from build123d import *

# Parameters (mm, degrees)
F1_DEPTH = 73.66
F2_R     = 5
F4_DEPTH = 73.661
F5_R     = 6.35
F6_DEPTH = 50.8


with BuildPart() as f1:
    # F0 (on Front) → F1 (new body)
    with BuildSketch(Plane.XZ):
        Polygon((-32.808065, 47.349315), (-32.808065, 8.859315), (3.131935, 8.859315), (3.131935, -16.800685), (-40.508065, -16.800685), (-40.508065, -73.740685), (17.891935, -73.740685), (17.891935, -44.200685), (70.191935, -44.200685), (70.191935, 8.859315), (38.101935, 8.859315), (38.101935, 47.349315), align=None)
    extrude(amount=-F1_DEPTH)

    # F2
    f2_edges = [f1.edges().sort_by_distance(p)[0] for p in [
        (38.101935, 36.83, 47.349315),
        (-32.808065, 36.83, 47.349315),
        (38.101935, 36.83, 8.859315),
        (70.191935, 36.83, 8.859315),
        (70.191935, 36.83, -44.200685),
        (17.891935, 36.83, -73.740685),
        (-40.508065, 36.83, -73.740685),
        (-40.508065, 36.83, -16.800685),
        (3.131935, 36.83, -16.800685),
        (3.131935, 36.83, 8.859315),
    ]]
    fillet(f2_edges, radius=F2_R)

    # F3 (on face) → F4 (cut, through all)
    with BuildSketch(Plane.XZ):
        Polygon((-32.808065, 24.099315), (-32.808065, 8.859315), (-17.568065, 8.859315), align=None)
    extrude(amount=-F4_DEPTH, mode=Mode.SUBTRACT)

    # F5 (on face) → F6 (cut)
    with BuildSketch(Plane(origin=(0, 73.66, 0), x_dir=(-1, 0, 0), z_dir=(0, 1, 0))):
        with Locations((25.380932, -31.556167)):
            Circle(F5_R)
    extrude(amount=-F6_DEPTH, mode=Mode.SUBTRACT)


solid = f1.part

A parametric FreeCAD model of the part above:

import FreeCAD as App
import Part
import Sketcher
from FreeCAD import Vector
Q = App.Units.Quantity


def edges_at(feature, points):
    """Names of the edges that pass closest to the given points."""
    edges = feature.Shape.Edges
    near = lambda p: min(range(len(edges)), key=lambda i: edges[i].distToShape(Part.Vertex(*p))[0])
    return sorted({f"Edge{near(p) + 1}" for p in points})


def add_polygon(sketch, points):
    """Adds a closed chain of lines whose ends are joined by coincident constraints."""
    first, n = sketch.GeometryCount, len(points)
    for a, b in zip(points, points[1:] + points[:1]):
        sketch.addGeometry(Part.LineSegment(App.Vector(*a, 0), App.Vector(*b, 0)), False)
    for i in range(n):
        sketch.addConstraint(Sketcher.Constraint("Coincident", first + i, 2, first + (i + 1) % n, 1))

doc = App.newDocument("Part")
body = doc.addObject("PartDesign::Body", "Body")

sketch1 = body.newObject("Sketcher::SketchObject", "Sketch")
sketch1.AttachmentSupport = (doc.getObject("XZ_Plane"), [""])
sketch1.MapMode = "FlatFace"
add_polygon(sketch1, [(-32.808065, 47.349315), (-32.808065, 8.859315), (3.131935, 8.859315), (3.131935, -16.800685), (-40.508065, -16.800685), (-40.508065, -73.740685), (17.891935, -73.740685), (17.891935, -44.200685), (70.191935, -44.200685), (70.191935, 8.859315), (38.101935, 8.859315), (38.101935, 47.349315)])
sketch1.addConstraint(Sketcher.Constraint("Vertical", 0))
sketch1.addConstraint(Sketcher.Constraint("Horizontal", 1))
sketch1.addConstraint(Sketcher.Constraint("Vertical", 2))
sketch1.addConstraint(Sketcher.Constraint("Horizontal", 3))
sketch1.addConstraint(Sketcher.Constraint("Vertical", 4))
sketch1.addConstraint(Sketcher.Constraint("Horizontal", 5))
sketch1.addConstraint(Sketcher.Constraint("Vertical", 6))
sketch1.addConstraint(Sketcher.Constraint("Horizontal", 7))
sketch1.addConstraint(Sketcher.Constraint("Vertical", 8))
sketch1.addConstraint(Sketcher.Constraint("Horizontal", 9))
sketch1.addConstraint(Sketcher.Constraint("Vertical", 10))
sketch1.addConstraint(Sketcher.Constraint("Horizontal", 11))
sketch1.addConstraint(Sketcher.Constraint("Horizontal", 1, 2, 8, 2))
sketch1.addConstraint(Sketcher.Constraint("DistanceX", 1, 1, 1, 2, 35.94))
sketch1.addConstraint(Sketcher.Constraint("DistanceX", 3, 2, 3, 1, 43.64))
sketch1.addConstraint(Sketcher.Constraint("DistanceX", 5, 1, 5, 2, 58.4))
sketch1.addConstraint(Sketcher.Constraint("DistanceX", 7, 1, 7, 2, 52.3))
sketch1.addConstraint(Sketcher.Constraint("DistanceX", 9, 2, 9, 1, 32.09))
sketch1.addConstraint(Sketcher.Constraint("DistanceY", 0, 2, 0, 1, 38.49))
sketch1.addConstraint(Sketcher.Constraint("DistanceY", 2, 2, 2, 1, 25.66))
sketch1.addConstraint(Sketcher.Constraint("DistanceY", 4, 2, 4, 1, 56.94))
sketch1.addConstraint(Sketcher.Constraint("DistanceY", 6, 1, 6, 2, 29.54))
sketch1.addConstraint(Sketcher.Constraint("DistanceX", 0, 2, -1, 1, 32.808065))
sketch1.addConstraint(Sketcher.Constraint("DistanceY", -1, 1, 0, 2, 8.859315))
pad1 = body.newObject("PartDesign::Pad", "Pad")
pad1.Profile = sketch1
pad1.Length = Q("2.9 in")
pad1.Reversed = True
doc.recompute()

fillet = body.newObject("PartDesign::Fillet", "Fillet")
fillet.Base = (pad1, edges_at(pad1, [
    (38.102, 36.83, 47.349),
    (-32.808, 36.83, 47.349),
    (38.102, 36.83, 8.859),
    (70.192, 36.83, 8.859),
    (70.192, 36.83, -44.201),
    (17.892, 36.83, -73.741),
    (-40.508, 36.83, -73.741),
    (-40.508, 36.83, -16.801),
    (3.132, 36.83, -16.801),
    (3.132, 36.83, 8.859),
]))
fillet.Radius = 5

sketch2 = body.newObject("Sketcher::SketchObject", "Sketch001")
sketch2.AttachmentSupport = (doc.getObject("XZ_Plane"), [""])
sketch2.MapMode = "FlatFace"
add_polygon(sketch2, [(-32.808065, 24.099315), (-32.808065, 8.859315), (-17.568065, 8.859315)])
sketch2.addConstraint(Sketcher.Constraint("Vertical", 0))
sketch2.addConstraint(Sketcher.Constraint("Horizontal", 1))
sketch2.addConstraint(Sketcher.Constraint("Equal", 1, 0))
sketch2.addConstraint(Sketcher.Constraint("DistanceX", 1, 1, 1, 2, Q("0.6 in")))
sketch2.addConstraint(Sketcher.Constraint("DistanceX", 0, 2, -1, 1, 32.808065))
sketch2.addConstraint(Sketcher.Constraint("DistanceY", -1, 1, 0, 2, 8.859315))
pocket1 = body.newObject("PartDesign::Pocket", "Pocket")
pocket1.Profile = sketch2
pocket1.Type = "ThroughAll"

sketch3 = body.newObject("Sketcher::SketchObject", "Sketch002")
sketch3.AttachmentSupport = (doc.getObject("XZ_Plane"), [""])
sketch3.MapMode = "FlatFace"
sketch3.AttachmentOffset = App.Placement(Vector(0, 0, -2.9 * 25.4), App.Rotation())
sketch3.addGeometry(Part.Circle(Vector(-25.380932, -31.556167, 0), Vector(0, 0, 1), 6.35), False)
sketch3.addConstraint(Sketcher.Constraint("Diameter", 0, Q("0.5 in")))
sketch3.addConstraint(Sketcher.Constraint("DistanceX", 0, 3, -1, 1, 25.380932))
sketch3.addConstraint(Sketcher.Constraint("DistanceY", 0, 3, -1, 1, 31.556167))
pocket2 = body.newObject("PartDesign::Pocket", "Pocket001")
pocket2.Profile = sketch3
pocket2.Length = Q("2 in")
pocket2.Reversed = True

doc.recompute()
